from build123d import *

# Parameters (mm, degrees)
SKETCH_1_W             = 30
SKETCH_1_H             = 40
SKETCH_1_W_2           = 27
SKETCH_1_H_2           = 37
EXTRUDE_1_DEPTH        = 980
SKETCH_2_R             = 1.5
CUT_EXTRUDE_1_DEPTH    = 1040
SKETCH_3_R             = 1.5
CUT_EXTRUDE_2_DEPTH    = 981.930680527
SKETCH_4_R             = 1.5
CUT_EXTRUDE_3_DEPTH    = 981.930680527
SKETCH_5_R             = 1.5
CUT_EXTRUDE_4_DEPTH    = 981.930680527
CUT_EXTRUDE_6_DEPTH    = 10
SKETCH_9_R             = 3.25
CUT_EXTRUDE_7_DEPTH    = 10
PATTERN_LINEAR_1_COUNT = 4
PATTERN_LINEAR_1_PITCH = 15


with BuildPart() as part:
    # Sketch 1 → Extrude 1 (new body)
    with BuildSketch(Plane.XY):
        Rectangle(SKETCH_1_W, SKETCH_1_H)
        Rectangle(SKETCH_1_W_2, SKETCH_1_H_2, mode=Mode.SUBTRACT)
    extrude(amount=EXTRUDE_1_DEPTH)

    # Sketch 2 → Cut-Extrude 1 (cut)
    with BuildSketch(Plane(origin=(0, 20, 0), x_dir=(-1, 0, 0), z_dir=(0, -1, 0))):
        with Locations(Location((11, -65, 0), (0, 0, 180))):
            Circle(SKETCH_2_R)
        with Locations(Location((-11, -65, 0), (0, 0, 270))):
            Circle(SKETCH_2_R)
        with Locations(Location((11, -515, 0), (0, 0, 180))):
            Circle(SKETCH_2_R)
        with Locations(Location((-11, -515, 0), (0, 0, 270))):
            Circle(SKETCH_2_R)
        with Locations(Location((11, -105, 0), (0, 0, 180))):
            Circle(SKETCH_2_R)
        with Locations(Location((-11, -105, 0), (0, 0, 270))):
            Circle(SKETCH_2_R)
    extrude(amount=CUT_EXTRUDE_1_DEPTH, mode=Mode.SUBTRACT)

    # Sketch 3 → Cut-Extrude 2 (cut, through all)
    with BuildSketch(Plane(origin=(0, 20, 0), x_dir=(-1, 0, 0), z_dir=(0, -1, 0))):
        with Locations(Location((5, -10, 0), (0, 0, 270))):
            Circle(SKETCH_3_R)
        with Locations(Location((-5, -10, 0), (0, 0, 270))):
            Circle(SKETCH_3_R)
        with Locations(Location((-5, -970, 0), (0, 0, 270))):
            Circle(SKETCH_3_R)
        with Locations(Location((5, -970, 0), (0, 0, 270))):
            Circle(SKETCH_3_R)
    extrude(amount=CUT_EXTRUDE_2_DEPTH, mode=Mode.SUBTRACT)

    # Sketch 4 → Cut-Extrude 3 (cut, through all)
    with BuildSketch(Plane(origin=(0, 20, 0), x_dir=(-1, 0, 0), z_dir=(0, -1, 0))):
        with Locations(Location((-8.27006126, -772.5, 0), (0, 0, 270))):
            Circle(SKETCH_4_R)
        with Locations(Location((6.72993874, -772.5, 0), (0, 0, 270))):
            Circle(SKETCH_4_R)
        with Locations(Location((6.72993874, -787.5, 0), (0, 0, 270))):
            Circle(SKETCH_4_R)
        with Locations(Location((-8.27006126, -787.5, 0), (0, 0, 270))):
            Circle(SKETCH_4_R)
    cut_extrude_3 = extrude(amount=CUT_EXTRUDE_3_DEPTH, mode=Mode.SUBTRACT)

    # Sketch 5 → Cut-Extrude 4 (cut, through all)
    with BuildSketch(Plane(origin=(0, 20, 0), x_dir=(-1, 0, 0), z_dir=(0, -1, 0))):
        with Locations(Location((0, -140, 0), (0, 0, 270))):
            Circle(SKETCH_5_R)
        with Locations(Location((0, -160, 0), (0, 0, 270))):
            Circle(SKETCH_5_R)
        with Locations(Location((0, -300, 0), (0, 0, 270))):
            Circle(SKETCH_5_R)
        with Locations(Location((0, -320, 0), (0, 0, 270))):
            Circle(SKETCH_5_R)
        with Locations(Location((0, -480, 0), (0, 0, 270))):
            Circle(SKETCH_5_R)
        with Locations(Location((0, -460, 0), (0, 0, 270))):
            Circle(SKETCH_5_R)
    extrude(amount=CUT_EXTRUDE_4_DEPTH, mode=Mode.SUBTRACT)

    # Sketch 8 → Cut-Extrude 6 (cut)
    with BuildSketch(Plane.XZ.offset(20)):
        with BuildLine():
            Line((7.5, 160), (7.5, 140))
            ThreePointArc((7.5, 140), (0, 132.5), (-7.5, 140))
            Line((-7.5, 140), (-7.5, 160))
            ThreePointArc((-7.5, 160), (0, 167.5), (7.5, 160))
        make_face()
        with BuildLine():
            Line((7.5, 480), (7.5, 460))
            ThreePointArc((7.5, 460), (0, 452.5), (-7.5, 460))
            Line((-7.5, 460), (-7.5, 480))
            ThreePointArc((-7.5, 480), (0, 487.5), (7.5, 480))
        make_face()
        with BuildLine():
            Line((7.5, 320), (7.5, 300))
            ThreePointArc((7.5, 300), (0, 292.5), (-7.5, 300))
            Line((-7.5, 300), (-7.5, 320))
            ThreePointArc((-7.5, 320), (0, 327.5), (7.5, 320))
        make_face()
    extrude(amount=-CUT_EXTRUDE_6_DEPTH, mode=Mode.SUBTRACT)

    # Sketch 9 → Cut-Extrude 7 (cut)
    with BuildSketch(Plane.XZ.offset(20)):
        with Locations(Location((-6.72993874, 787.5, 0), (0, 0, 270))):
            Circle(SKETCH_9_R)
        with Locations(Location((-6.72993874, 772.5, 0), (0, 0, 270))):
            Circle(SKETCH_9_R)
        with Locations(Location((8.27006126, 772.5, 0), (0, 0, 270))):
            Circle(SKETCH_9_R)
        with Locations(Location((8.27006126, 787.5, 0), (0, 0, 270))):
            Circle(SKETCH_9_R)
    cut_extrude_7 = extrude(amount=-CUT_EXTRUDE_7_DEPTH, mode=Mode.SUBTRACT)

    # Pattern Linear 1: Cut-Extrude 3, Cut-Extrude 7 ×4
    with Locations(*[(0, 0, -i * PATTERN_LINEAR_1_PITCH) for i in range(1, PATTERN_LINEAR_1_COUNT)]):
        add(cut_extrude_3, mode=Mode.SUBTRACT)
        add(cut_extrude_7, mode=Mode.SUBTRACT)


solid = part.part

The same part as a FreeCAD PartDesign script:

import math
import FreeCAD as App
import Part
import Sketcher
from FreeCAD import Vector
Q = App.Units.Quantity


def add_polygon(sketch, points):
    """Adds a closed chain of lines whose ends are joined by coincident constraints."""
    first, n = sketch.GeometryCount, len(points)
    for a, b in zip(points, points[1:] + points[:1]):
        sketch.addGeometry(Part.LineSegment(App.Vector(*a, 0), App.Vector(*b, 0)), False)
    for i in range(n):
        sketch.addConstraint(Sketcher.Constraint("Coincident", first + i, 2, first + (i + 1) % n, 1))

doc = App.newDocument("Part")
params = doc.addObject("Spreadsheet::Sheet", "Params")
for row, (alias, value) in enumerate([
    ("sketch1_width", "30 mm"),
    ("sketch1_width2", "27 mm"),
    ("sketch1_height", "40 mm"),
    ("sketch1_height2", "37 mm"),
    ("pad1_length", "980 mm"),
    ("sketch2_diameter", "3 mm"),
    ("pocket1_length", "1040 mm"),
    ("sketch3_diameter", "3 mm"),
    ("sketch4_diameter", "3 mm"),
    ("sketch5_diameter", "3 mm"),
    ("sketch6_radius", "7.5 mm"),
    ("sketch6_height", "20 mm"),
    ("pocket5_length", "10 mm"),
    ("sketch7_diameter", "6.5 mm"),
    ("pocket6_length", "10 mm"),
    ("linearpattern_pitch", "15 mm"),
], start=1):
    params.set(f"A{row}", alias)
    params.set(f"B{row}", "=" + value)
    params.setAlias(f"B{row}", alias)

body = doc.addObject("PartDesign::Body", "Body")

# Sketch on XY plane
sketch1 = body.newObject("Sketcher::SketchObject", "Sketch")
sketch1.AttachmentSupport = (doc.getObject("XY_Plane"), [""])
sketch1.MapMode = "FlatFace"
add_polygon(sketch1, [(-15, 20), (-15, -20), (15, -20), (15, 20)])  # lines 0-3
add_polygon(sketch1, [(13.5, -18.5), (-13.5, -18.5), (-13.5, 18.5), (13.5, 18.5)])  # lines 4-7
sketch1.addConstraint(Sketcher.Constraint("Vertical", 0))
sketch1.addConstraint(Sketcher.Constraint("Horizontal", 1))
sketch1.addConstraint(Sketcher.Constraint("Vertical", 2))
sketch1.addConstraint(Sketcher.Constraint("Horizontal", 3))
sketch1.addConstraint(Sketcher.Constraint("Horizontal", 4))
sketch1.addConstraint(Sketcher.Constraint("Vertical", 5))
sketch1.addConstraint(Sketcher.Constraint("Horizontal", 6))
sketch1.addConstraint(Sketcher.Constraint("Vertical", 7))
sketch1.addConstraint(Sketcher.Constraint("Symmetric", 0, 2, 2, 2, -1, 1))
sketch1.addConstraint(Sketcher.Constraint("Symmetric", 4, 2, 6, 2, -1, 1))
sketch1.addConstraint(Sketcher.Constraint("DistanceX", 1, 1, 1, 2, Q("30 mm")))
sketch1.addConstraint(Sketcher.Constraint("DistanceX", 4, 2, 4, 1, Q("27 mm")))
sketch1.addConstraint(Sketcher.Constraint("DistanceY", 0, 2, 0, 1, Q("40 mm")))
sketch1.addConstraint(Sketcher.Constraint("DistanceY", 5, 1, 5, 2, Q("37 mm")))
sketch1.setExpression("Constraints[18]", "Params.sketch1_width")
sketch1.setExpression("Constraints[19]", "Params.sketch1_width2")
sketch1.setExpression("Constraints[20]", "Params.sketch1_height")
sketch1.setExpression("Constraints[21]", "Params.sketch1_height2")
pad1 = body.newObject("PartDesign::Pad", "Pad")
pad1.Profile = sketch1
pad1.setExpression("Length", "Params.pad1_length")

# Sketch on XZ plane
sketch2 = body.newObject("Sketcher::SketchObject", "Sketch001")
sketch2.AttachmentSupport = (doc.getObject("XZ_Plane"), [""])
sketch2.MapMode = "FlatFace"
sketch2.AttachmentOffset = App.Placement(Vector(0, 0, -20), App.Rotation())
sketch2.addGeometry(Part.Circle(Vector(-11, 65, 0), Vector(0, 0, 1), 1.5), False)
sketch2.addGeometry(Part.Circle(Vector(11, 65, 0), Vector(0, 0, 1), 1.5), False)
sketch2.addGeometry(Part.Circle(Vector(-11, 515, 0), Vector(0, 0, 1), 1.5), False)
sketch2.addGeometry(Part.Circle(Vector(11, 515, 0), Vector(0, 0, 1), 1.5), False)
sketch2.addGeometry(Part.Circle(Vector(-11, 105, 0), Vector(0, 0, 1), 1.5), False)
sketch2.addGeometry(Part.Circle(Vector(11, 105, 0), Vector(0, 0, 1), 1.5), False)
sketch2.addConstraint(Sketcher.Constraint("Equal", 0, 1))
sketch2.addConstraint(Sketcher.Constraint("Equal", 1, 2))
sketch2.addConstraint(Sketcher.Constraint("Equal", 2, 3))
sketch2.addConstraint(Sketcher.Constraint("Equal", 3, 4))
sketch2.addConstraint(Sketcher.Constraint("Equal", 4, 5))
sketch2.addConstraint(Sketcher.Constraint("Symmetric", 0, 3, 1, 3, -2))
sketch2.addConstraint(Sketcher.Constraint("Symmetric", 2, 3, 3, 3, -2))
sketch2.addConstraint(Sketcher.Constraint("Symmetric", 4, 3, 5, 3, -2))
sketch2.addConstraint(Sketcher.Constraint("Vertical", 0, 3, 2, 3))
sketch2.addConstraint(Sketcher.Constraint("Vertical", 2, 3, 4, 3))
sketch2.addConstraint(Sketcher.Constraint("Diameter", 0, Q("3 mm")))
sketch2.addConstraint(Sketcher.Constraint("DistanceX", 0, 3, -1, 1, Q("11 mm")))
sketch2.addConstraint(Sketcher.Constraint("DistanceY", -1, 1, 0, 3, Q("65 mm")))
sketch2.addConstraint(Sketcher.Constraint("DistanceY", -1, 1, 2, 3, Q("515 mm")))
sketch2.addConstraint(Sketcher.Constraint("DistanceY", -1, 1, 4, 3, Q("105 mm")))
sketch2.setExpression("Constraints[10]", "Params.sketch2_diameter")
pocket1 = body.newObject("PartDesign::Pocket", "Pocket")
pocket1.Profile = sketch2
pocket1.setExpression("Length", "Params.pocket1_length")
pocket1.Reversed = True

# Sketch on XZ plane
sketch3 = body.newObject("Sketcher::SketchObject", "Sketch002")
sketch3.AttachmentSupport = (doc.getObject("XZ_Plane"), [""])
sketch3.MapMode = "FlatFace"
sketch3.AttachmentOffset = App.Placement(Vector(0, 0, -20), App.Rotation())
sketch3.addGeometry(Part.Circle(Vector(-5, 10, 0), Vector(0, 0, 1), 1.5), False)
sketch3.addGeometry(Part.Circle(Vector(5, 10, 0), Vector(0, 0, 1), 1.5), False)
sketch3.addGeometry(Part.Circle(Vector(5, 970, 0), Vector(0, 0, 1), 1.5), False)
sketch3.addGeometry(Part.Circle(Vector(-5, 970, 0), Vector(0, 0, 1), 1.5), False)
sketch3.addConstraint(Sketcher.Constraint("Equal", 0, 1))
sketch3.addConstraint(Sketcher.Constraint("Equal", 1, 2))
sketch3.addConstraint(Sketcher.Constraint("Equal", 2, 3))
sketch3.addConstraint(Sketcher.Constraint("Symmetric", 0, 3, 1, 3, -2))
sketch3.addConstraint(Sketcher.Constraint("Symmetric", 2, 3, 3, 3, -2))
sketch3.addConstraint(Sketcher.Constraint("Vertical", 1, 3, 2, 3))
sketch3.addConstraint(Sketcher.Constraint("Diameter", 0, Q("3 mm")))
sketch3.addConstraint(Sketcher.Constraint("DistanceX", 0, 3, -1, 1, Q("5 mm")))
sketch3.addConstraint(Sketcher.Constraint("DistanceY", -1, 1, 0, 3, Q("10 mm")))
sketch3.addConstraint(Sketcher.Constraint("DistanceY", -1, 1, 2, 3, Q("970 mm")))
sketch3.setExpression("Constraints[6]", "Params.sketch3_diameter")
pocket2 = body.newObject("PartDesign::Pocket", "Pocket001")
pocket2.Profile = sketch3
pocket2.Type = "ThroughAll"
pocket2.Reversed = True

# Sketch on XZ plane
sketch4 = body.newObject("Sketcher::SketchObject", "Sketch003")
sketch4.AttachmentSupport = (doc.getObject("XZ_Plane"), [""])
sketch4.MapMode = "FlatFace"
sketch4.AttachmentOffset = App.Placement(Vector(0, 0, -20), App.Rotation())
sketch4.addGeometry(Part.Circle(Vector(8.270061, 772.5, 0), Vector(0, 0, 1), 1.5), False)
sketch4.addGeometry(Part.Circle(Vector(-6.729939, 772.5, 0), Vector(0, 0, 1), 1.5), False)
sketch4.addGeometry(Part.Circle(Vector(-6.729939, 787.5, 0), Vector(0, 0, 1), 1.5), False)
sketch4.addGeometry(Part.Circle(Vector(8.270061, 787.5, 0), Vector(0, 0, 1), 1.5), False)
sketch4.addConstraint(Sketcher.Constraint("Equal", 0, 1))
sketch4.addConstraint(Sketcher.Constraint("Equal", 1, 2))
sketch4.addConstraint(Sketcher.Constraint("Equal", 2, 3))
sketch4.addConstraint(Sketcher.Constraint("Horizontal", 0, 3, 1, 3))
sketch4.addConstraint(Sketcher.Constraint("Horizontal", 2, 3, 3, 3))
sketch4.addConstraint(Sketcher.Constraint("Vertical", 1, 3, 2, 3))
sketch4.addConstraint(Sketcher.Constraint("Vertical", 0, 3, 3, 3))
sketch4.addConstraint(Sketcher.Constraint("Diameter", 0, Q("3 mm")))
sketch4.addConstraint(Sketcher.Constraint("DistanceX", 1, 3, 0, 3, Q("15 mm")))
sketch4.addConstraint(Sketcher.Constraint("DistanceY", 1, 3, 2, 3, Q("15 mm")))
sketch4.addConstraint(Sketcher.Constraint("DistanceY", -1, 1, 0, 3, Q("772.5 mm")))
sketch4.addConstraint(Sketcher.Constraint("DistanceX", -1, 1, 0, 3, Q("8.270061 mm")))
sketch4.setExpression("Constraints[7]", "Params.sketch4_diameter")
pocket3 = body.newObject("PartDesign::Pocket", "Pocket002")
pocket3.Profile = sketch4
pocket3.Type = "ThroughAll"
pocket3.Reversed = True

# Sketch on XZ plane
sketch5 = body.newObject("Sketcher::SketchObject", "Sketch004")
sketch5.AttachmentSupport = (doc.getObject("XZ_Plane"), [""])
sketch5.MapMode = "FlatFace"
sketch5.AttachmentOffset = App.Placement(Vector(0, 0, -20), App.Rotation())
sketch5.addGeometry(Part.Circle(Vector(0, 140, 0), Vector(0, 0, 1), 1.5), False)
sketch5.addGeometry(Part.Circle(Vector(0, 160, 0), Vector(0, 0, 1), 1.5), False)
sketch5.addGeometry(Part.Circle(Vector(0, 300, 0), Vector(0, 0, 1), 1.5), False)
sketch5.addGeometry(Part.Circle(Vector(0, 320, 0), Vector(0, 0, 1), 1.5), False)
sketch5.addGeometry(Part.Circle(Vector(0, 480, 0), Vector(0, 0, 1), 1.5), False)
sketch5.addGeometry(Part.Circle(Vector(0, 460, 0), Vector(0, 0, 1), 1.5), False)
sketch5.addConstraint(Sketcher.Constraint("Equal", 0, 1))
sketch5.addConstraint(Sketcher.Constraint("Equal", 1, 2))
sketch5.addConstraint(Sketcher.Constraint("Equal", 2, 3))
sketch5.addConstraint(Sketcher.Constraint("Equal", 3, 4))
sketch5.addConstraint(Sketcher.Constraint("Equal", 4, 5))
sketch5.addConstraint(Sketcher.Constraint("PointOnObject", 0, 3, -2))
sketch5.addConstraint(Sketcher.Constraint("PointOnObject", 1, 3, -2))
sketch5.addConstraint(Sketcher.Constraint("PointOnObject", 2, 3, -2))
sketch5.addConstraint(Sketcher.Constraint("PointOnObject", 3, 3, -2))
sketch5.addConstraint(Sketcher.Constraint("PointOnObject", 4, 3, -2))
sketch5.addConstraint(Sketcher.Constraint("PointOnObject", 5, 3, -2))
sketch5.addConstraint(Sketcher.Constraint("Diameter", 0, Q("3 mm")))
sketch5.addConstraint(Sketcher.Constraint("DistanceY", -1, 1, 0, 3, Q("140 mm")))
sketch5.addConstraint(Sketcher.Constraint("DistanceY", -1, 1, 1, 3, Q("160 mm")))
sketch5.addConstraint(Sketcher.Constraint("DistanceY", -1, 1, 2, 3, Q("300 mm")))
sketch5.addConstraint(Sketcher.Constraint("DistanceY", -1, 1, 3, 3, Q("320 mm")))
sketch5.addConstraint(Sketcher.Constraint("DistanceY", -1, 1, 4, 3, Q("480 mm")))
sketch5.addConstraint(Sketcher.Constraint("DistanceY", -1, 1, 5, 3, Q("460 mm")))
sketch5.setExpression("Constraints[11]", "Params.sketch5_diameter")
pocket4 = body.newObject("PartDesign::Pocket", "Pocket003")
pocket4.Profile = sketch5
pocket4.Type = "ThroughAll"
pocket4.Reversed = True

# Sketch on XZ plane
sketch6 = body.newObject("Sketcher::SketchObject", "Sketch005")
sketch6.AttachmentSupport = (doc.getObject("XZ_Plane"), [""])
sketch6.MapMode = "FlatFace"
sketch6.AttachmentOffset = App.Placement(Vector(0, 0, 20), App.Rotation())
sketch6.addGeometry(Part.LineSegment(Vector(7.5, 140, 0), Vector(7.5, 160, 0)), False)
sketch6.addGeometry(Part.ArcOfCircle(Part.Circle(Vector(0, 160, 0), Vector(0, 0, 1), 7.5), math.radians(0), math.radians(180)), False)
sketch6.addGeometry(Part.LineSegment(Vector(-7.5, 160, 0), Vector(-7.5, 140, 0)), False)
sketch6.addGeometry(Part.ArcOfCircle(Part.Circle(Vector(0, 140, 0), Vector(0, 0, 1), 7.5), math.radians(180), math.radians(360)), False)
sketch6.addGeometry(Part.LineSegment(Vector(7.5, 460, 0), Vector(7.5, 480, 0)), False)
sketch6.addGeometry(Part.ArcOfCircle(Part.Circle(Vector(0, 480, 0), Vector(0, 0, 1), 7.5), math.radians(0), math.radians(180)), False)
sketch6.addGeometry(Part.LineSegment(Vector(-7.5, 480, 0), Vector(-7.5, 460, 0)), False)
sketch6.addGeometry(Part.ArcOfCircle(Part.Circle(Vector(0, 460, 0), Vector(0, 0, 1), 7.5), math.radians(180), math.radians(360)), False)
sketch6.addGeometry(Part.LineSegment(Vector(7.5, 300, 0), Vector(7.5, 320, 0)), False)
sketch6.addGeometry(Part.ArcOfCircle(Part.Circle(Vector(0, 320, 0), Vector(0, 0, 1), 7.5), math.radians(0), math.radians(180)), False)
sketch6.addGeometry(Part.LineSegment(Vector(-7.5, 320, 0), Vector(-7.5, 300, 0)), False)
sketch6.addGeometry(Part.ArcOfCircle(Part.Circle(Vector(0, 300, 0), Vector(0, 0, 1), 7.5), math.radians(180), math.radians(360)), False)
sketch6.addConstraint(Sketcher.Constraint("Tangent", 0, 2, 1, 1))
sketch6.addConstraint(Sketcher.Constraint("Tangent", 1, 2, 2, 1))
sketch6.addConstraint(Sketcher.Constraint("Tangent", 2, 2, 3, 1))
sketch6.addConstraint(Sketcher.Constraint("Tangent", 3, 2, 0, 1))
sketch6.addConstraint(Sketcher.Constraint("Tangent", 4, 2, 5, 1))
sketch6.addConstraint(Sketcher.Constraint("Tangent", 5, 2, 6, 1))
sketch6.addConstraint(Sketcher.Constraint("Tangent", 6, 2, 7, 1))
sketch6.addConstraint(Sketcher.Constraint("Tangent", 7, 2, 4, 1))
sketch6.addConstraint(Sketcher.Constraint("Tangent", 8, 2, 9, 1))
sketch6.addConstraint(Sketcher.Constraint("Tangent", 9, 2, 10, 1))
sketch6.addConstraint(Sketcher.Constraint("Tangent", 10, 2, 11, 1))
sketch6.addConstraint(Sketcher.Constraint("Tangent", 11, 2, 8, 1))
sketch6.addConstraint(Sketcher.Constraint("Vertical", 0))
sketch6.addConstraint(Sketcher.Constraint("Vertical", 2))
sketch6.addConstraint(Sketcher.Constraint("Vertical", 4))
sketch6.addConstraint(Sketcher.Constraint("Vertical", 6))
sketch6.addConstraint(Sketcher.Constraint("Vertical", 8))
sketch6.addConstraint(Sketcher.Constraint("Vertical", 10))
sketch6.addConstraint(Sketcher.Constraint("Equal", 3, 5))
sketch6.addConstraint(Sketcher.Constraint("Equal", 7, 9))
sketch6.addConstraint(Sketcher.Constraint("PointOnObject", 1, 3, -2))
sketch6.addConstraint(Sketcher.Constraint("PointOnObject", 5, 3, -2))
sketch6.addConstraint(Sketcher.Constraint("PointOnObject", 9, 3, -2))
sketch6.addConstraint(Sketcher.Constraint("Equal", 2, 4))
sketch6.addConstraint(Sketcher.Constraint("Equal", 6, 8))
sketch6.addConstraint(Sketcher.Constraint("Radius", 1, Q("7.5 mm")))
sketch6.addConstraint(Sketcher.Constraint("DistanceY", 0, 1, 0, 2, Q("20 mm")))
sketch6.addConstraint(Sketcher.Constraint("DistanceY", -1, 1, 1, 3, Q("160 mm")))
sketch6.addConstraint(Sketcher.Constraint("DistanceY", -1, 1, 5, 3, Q("480 mm")))
sketch6.addConstraint(Sketcher.Constraint("DistanceY", -1, 1, 9, 3, Q("320 mm")))
sketch6.setExpression("Constraints[25]", "Params.sketch6_radius")
sketch6.setExpression("Constraints[26]", "Params.sketch6_height")
pocket5 = body.newObject("PartDesign::Pocket", "Pocket004")
pocket5.Profile = sketch6
pocket5.setExpression("Length", "Params.pocket5_length")

# Sketch on XZ plane
sketch7 = body.newObject("Sketcher::SketchObject", "Sketch006")
sketch7.AttachmentSupport = (doc.getObject("XZ_Plane"), [""])
sketch7.MapMode = "FlatFace"
sketch7.AttachmentOffset = App.Placement(Vector(0, 0, 20), App.Rotation())
sketch7.addGeometry(Part.Circle(Vector(-6.729939, 787.5, 0), Vector(0, 0, 1), 3.25), False)
sketch7.addGeometry(Part.Circle(Vector(-6.729939, 772.5, 0), Vector(0, 0, 1), 3.25), False)
sketch7.addGeometry(Part.Circle(Vector(8.270061, 772.5, 0), Vector(0, 0, 1), 3.25), False)
sketch7.addGeometry(Part.Circle(Vector(8.270061, 787.5, 0), Vector(0, 0, 1), 3.25), False)
sketch7.addConstraint(Sketcher.Constraint("Equal", 0, 1))
sketch7.addConstraint(Sketcher.Constraint("Equal", 1, 2))
sketch7.addConstraint(Sketcher.Constraint("Equal", 2, 3))
sketch7.addConstraint(Sketcher.Constraint("Horizontal", 1, 3, 2, 3))
sketch7.addConstraint(Sketcher.Constraint("Horizontal", 0, 3, 3, 3))
sketch7.addConstraint(Sketcher.Constraint("Vertical", 0, 3, 1, 3))
sketch7.addConstraint(Sketcher.Constraint("Vertical", 2, 3, 3, 3))
sketch7.addConstraint(Sketcher.Constraint("Diameter", 0, Q("6.5 mm")))
sketch7.addConstraint(Sketcher.Constraint("DistanceY", 1, 3, 0, 3, Q("15 mm")))
sketch7.addConstraint(Sketcher.Constraint("DistanceX", 1, 3, 2, 3, Q("15 mm")))
sketch7.addConstraint(Sketcher.Constraint("DistanceY", -1, 1, 0, 3, Q("787.5 mm")))
sketch7.addConstraint(Sketcher.Constraint("DistanceX", 0, 3, -1, 1, Q("6.729939 mm")))
sketch7.setExpression("Constraints[7]", "Params.sketch7_diameter")
pocket6 = body.newObject("PartDesign::Pocket", "Pocket005")
pocket6.Profile = sketch7
pocket6.setExpression("Length", "Params.pocket6_length")
doc.recompute()

linearpattern = body.newObject("PartDesign::LinearPattern", "LinearPattern")
linearpattern.Originals = [pocket3, pocket6]
linearpattern.Direction = (doc.getObject("Z_Axis"), [""])
linearpattern.Mode = "offset"
linearpattern.setExpression("Offset", "Params.linearpattern_pitch")
linearpattern.Occurrences = 4
linearpattern.Reversed = True
body.Tip = linearpattern

doc.recompute()
